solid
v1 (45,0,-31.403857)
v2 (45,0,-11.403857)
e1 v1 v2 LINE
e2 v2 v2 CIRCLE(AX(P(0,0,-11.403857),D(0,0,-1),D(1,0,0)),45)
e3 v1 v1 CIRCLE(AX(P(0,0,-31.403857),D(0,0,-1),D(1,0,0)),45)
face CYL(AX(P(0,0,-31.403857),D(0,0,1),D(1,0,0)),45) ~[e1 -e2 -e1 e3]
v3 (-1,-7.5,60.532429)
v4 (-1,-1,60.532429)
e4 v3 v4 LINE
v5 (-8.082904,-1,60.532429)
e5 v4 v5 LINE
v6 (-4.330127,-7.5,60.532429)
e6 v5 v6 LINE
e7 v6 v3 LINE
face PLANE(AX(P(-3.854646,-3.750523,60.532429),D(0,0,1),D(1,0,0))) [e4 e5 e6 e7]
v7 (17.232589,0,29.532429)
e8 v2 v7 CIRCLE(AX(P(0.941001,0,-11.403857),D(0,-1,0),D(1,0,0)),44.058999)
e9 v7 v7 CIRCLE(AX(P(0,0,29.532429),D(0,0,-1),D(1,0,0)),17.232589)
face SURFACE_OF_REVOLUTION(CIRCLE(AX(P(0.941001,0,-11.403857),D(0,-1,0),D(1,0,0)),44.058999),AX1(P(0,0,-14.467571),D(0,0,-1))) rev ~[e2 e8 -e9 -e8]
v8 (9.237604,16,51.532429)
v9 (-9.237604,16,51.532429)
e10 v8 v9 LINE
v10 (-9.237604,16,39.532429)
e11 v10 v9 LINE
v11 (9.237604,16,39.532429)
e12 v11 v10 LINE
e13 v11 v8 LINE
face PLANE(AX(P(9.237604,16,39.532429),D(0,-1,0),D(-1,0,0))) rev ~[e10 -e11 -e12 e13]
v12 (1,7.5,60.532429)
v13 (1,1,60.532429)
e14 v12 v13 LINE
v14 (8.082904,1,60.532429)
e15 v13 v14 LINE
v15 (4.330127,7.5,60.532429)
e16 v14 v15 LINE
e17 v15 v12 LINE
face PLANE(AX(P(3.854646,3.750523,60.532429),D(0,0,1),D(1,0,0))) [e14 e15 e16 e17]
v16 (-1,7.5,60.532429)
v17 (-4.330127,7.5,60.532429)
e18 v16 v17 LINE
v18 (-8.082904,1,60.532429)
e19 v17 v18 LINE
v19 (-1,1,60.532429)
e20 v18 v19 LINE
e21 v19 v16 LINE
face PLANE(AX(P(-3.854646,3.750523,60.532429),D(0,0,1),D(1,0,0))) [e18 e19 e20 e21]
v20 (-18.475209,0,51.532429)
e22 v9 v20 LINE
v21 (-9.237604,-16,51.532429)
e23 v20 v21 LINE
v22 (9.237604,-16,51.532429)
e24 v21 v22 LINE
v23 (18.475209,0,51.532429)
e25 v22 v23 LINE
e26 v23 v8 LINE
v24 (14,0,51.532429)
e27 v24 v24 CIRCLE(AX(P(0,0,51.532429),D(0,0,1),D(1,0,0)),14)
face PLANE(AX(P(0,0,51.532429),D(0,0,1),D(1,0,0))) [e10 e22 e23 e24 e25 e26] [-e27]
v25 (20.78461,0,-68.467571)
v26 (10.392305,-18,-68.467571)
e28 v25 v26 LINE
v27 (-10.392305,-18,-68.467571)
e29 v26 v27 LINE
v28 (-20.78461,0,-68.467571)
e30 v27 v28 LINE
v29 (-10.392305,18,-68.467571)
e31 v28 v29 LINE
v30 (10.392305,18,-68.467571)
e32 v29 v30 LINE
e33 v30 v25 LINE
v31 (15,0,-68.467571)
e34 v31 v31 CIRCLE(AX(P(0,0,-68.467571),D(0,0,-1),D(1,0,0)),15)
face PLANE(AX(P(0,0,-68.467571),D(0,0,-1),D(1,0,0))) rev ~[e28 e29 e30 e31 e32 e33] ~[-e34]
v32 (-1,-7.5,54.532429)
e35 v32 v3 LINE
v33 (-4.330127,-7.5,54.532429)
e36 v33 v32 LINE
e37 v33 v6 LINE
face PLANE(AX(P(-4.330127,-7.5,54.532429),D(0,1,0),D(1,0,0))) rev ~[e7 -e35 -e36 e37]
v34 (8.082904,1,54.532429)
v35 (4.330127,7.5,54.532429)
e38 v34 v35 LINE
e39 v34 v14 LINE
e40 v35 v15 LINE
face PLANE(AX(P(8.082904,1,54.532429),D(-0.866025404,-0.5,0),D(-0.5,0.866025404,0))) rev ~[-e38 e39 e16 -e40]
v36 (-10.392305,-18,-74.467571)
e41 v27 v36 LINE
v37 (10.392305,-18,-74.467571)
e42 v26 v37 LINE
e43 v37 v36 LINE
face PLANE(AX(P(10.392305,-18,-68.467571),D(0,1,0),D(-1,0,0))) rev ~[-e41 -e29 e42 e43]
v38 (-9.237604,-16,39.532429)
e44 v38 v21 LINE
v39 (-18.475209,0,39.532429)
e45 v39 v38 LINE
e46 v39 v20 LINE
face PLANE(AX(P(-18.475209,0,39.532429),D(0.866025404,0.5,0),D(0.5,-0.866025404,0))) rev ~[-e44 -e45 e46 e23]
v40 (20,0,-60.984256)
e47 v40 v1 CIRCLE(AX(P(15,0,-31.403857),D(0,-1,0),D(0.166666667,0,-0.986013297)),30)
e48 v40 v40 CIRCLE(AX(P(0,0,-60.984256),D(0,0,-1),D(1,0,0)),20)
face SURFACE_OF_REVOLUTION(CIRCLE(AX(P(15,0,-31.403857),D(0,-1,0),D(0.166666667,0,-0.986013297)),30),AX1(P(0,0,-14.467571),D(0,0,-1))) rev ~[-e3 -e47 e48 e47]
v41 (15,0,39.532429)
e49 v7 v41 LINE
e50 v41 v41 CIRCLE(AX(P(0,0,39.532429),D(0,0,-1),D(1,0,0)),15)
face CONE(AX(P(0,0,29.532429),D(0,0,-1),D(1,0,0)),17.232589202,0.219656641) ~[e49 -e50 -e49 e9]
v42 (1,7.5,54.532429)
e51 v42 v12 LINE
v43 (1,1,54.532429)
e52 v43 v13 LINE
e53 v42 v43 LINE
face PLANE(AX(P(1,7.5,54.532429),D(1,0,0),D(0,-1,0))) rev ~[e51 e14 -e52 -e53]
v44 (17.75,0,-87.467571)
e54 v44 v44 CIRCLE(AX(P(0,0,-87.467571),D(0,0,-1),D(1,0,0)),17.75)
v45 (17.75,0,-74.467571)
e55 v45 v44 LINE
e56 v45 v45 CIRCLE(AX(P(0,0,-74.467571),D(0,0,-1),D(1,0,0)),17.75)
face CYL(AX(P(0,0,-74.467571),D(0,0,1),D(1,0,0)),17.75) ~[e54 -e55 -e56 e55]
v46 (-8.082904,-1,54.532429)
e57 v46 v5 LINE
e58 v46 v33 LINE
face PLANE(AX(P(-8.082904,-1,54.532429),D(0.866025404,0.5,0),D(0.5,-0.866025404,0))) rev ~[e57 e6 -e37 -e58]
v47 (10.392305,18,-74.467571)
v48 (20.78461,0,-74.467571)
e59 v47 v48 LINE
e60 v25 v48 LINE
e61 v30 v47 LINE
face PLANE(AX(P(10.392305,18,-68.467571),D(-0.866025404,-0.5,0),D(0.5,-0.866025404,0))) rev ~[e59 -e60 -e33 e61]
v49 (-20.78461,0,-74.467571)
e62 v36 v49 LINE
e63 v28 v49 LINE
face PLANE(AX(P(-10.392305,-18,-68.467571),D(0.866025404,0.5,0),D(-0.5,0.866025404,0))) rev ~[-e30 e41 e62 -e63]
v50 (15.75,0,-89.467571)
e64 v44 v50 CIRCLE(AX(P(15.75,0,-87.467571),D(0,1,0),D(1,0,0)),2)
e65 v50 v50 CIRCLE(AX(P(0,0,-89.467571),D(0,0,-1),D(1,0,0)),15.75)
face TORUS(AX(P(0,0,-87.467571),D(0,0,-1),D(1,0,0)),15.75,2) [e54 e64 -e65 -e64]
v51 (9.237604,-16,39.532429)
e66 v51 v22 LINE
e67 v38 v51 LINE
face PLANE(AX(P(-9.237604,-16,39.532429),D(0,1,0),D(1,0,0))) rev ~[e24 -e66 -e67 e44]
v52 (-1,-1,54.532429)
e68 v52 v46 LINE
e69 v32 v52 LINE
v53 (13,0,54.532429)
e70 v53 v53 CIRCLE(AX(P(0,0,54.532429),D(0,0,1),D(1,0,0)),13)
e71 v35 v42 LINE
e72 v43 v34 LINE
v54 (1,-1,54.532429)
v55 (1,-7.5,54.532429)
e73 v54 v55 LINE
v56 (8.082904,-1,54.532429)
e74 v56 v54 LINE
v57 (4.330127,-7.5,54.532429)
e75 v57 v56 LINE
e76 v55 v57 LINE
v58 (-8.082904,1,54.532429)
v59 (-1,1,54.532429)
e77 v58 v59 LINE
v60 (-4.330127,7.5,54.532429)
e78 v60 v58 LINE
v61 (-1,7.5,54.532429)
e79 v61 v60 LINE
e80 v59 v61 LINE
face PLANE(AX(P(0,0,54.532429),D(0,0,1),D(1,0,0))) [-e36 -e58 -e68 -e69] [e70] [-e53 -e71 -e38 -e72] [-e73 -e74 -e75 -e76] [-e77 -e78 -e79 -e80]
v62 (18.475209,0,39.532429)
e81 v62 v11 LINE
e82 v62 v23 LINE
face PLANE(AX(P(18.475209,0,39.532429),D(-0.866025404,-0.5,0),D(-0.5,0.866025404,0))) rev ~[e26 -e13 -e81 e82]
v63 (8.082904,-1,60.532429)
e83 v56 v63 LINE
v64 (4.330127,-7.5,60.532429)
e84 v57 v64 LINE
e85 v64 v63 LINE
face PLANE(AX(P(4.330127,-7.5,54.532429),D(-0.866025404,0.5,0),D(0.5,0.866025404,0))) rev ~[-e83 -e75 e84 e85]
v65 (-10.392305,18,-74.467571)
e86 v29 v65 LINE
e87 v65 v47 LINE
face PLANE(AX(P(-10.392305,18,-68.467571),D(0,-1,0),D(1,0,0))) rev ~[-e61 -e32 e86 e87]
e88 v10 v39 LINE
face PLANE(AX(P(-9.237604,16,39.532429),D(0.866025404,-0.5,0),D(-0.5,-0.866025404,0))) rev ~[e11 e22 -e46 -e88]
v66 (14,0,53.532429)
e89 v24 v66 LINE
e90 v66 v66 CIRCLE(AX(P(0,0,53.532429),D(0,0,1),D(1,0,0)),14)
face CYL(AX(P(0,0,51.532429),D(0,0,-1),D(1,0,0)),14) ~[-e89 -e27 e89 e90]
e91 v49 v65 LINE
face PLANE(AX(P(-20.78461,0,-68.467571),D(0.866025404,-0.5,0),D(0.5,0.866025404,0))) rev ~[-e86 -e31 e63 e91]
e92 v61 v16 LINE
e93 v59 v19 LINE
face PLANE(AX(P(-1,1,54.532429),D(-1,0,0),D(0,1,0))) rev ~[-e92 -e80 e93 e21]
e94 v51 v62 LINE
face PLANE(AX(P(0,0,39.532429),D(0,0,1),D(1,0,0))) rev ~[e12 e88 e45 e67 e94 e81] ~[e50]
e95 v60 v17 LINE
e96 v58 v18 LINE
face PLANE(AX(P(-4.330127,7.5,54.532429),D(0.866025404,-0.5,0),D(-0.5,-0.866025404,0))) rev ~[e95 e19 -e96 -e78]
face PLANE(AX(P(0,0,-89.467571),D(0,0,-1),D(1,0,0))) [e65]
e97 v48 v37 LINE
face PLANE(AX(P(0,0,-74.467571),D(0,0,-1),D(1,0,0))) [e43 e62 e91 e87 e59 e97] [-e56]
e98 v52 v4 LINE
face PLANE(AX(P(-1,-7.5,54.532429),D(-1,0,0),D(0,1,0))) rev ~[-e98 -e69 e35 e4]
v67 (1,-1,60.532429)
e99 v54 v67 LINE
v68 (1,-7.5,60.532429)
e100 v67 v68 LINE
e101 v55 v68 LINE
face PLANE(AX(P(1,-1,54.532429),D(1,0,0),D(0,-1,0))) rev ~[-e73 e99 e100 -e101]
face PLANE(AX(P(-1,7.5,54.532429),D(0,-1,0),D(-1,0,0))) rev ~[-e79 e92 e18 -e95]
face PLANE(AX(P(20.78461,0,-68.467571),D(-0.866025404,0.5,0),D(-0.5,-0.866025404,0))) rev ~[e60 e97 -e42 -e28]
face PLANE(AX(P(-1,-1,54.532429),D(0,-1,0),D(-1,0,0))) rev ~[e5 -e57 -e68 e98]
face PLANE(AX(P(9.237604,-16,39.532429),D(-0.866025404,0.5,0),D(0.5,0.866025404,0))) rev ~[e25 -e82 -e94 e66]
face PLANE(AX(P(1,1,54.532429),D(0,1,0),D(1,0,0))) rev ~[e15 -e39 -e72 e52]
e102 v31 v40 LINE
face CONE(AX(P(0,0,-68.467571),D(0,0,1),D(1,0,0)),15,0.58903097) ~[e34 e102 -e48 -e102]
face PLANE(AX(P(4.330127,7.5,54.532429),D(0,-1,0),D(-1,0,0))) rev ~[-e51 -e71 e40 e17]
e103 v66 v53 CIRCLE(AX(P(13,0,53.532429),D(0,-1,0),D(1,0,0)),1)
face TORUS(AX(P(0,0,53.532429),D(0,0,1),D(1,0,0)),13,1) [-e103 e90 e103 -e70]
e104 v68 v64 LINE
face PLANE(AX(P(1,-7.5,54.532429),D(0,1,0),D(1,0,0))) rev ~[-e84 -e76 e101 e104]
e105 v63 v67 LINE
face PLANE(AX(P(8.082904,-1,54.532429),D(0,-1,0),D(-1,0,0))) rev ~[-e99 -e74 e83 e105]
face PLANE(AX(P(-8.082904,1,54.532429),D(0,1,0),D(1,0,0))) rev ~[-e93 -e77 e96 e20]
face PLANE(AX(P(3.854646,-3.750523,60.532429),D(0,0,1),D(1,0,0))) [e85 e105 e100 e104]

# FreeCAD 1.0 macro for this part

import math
import FreeCAD as App
import Part
import Sketcher
Q = App.Units.Quantity


def edges_at(feature, points):
    """Names of the edges that pass closest to the given points."""
    edges = feature.Shape.Edges
    near = lambda p: min(range(len(edges)), key=lambda i: edges[i].distToShape(Part.Vertex(*p))[0])
    return sorted({f"Edge{near(p) + 1}" for p in points})


def add_polygon(sketch, points):
    """Adds a closed chain of lines whose ends are joined by coincident constraints."""
    first, n = sketch.GeometryCount, len(points)
    for a, b in zip(points, points[1:] + points[:1]):
        sketch.addGeometry(Part.LineSegment(App.Vector(*a, 0), App.Vector(*b, 0)), False)
    for i in range(n):
        sketch.addConstraint(Sketcher.Constraint("Coincident", first + i, 2, first + (i + 1) % n, 1))

doc = App.newDocument("Part")
body = doc.addObject("PartDesign::Body", "Body")

sketch1 = doc.addObject("Sketcher::SketchObject", "Sketch")
body.addObject(sketch1)
sketch1.AttachmentSupport = (doc.XZ_Plane, [""])
sketch1.MapMode = "FlatFace"
sketch1.addGeometry([
    Part.LineSegment(App.Vector(15, 40, 0), App.Vector(0, 40, 0)),
    Part.LineSegment(App.Vector(0, 40, 0), App.Vector(0, -68, 0)),
    Part.LineSegment(App.Vector(0, -68, 0), App.Vector(15, -68, 0)),
    Part.LineSegment(App.Vector(15, -68, 0), App.Vector(20, -61, 0)),
    Part.ArcOfCircle(Part.Circle(App.Vector(15, -31, 0), App.Vector(0, 0, 1), 30), math.radians(-80), math.radians(0)),
    Part.LineSegment(App.Vector(45, -31, 0), App.Vector(45, -11, 0)),
    Part.ArcOfCircle(Part.Circle(App.Vector(1, -11, 0), App.Vector(0, 0, 1), 44), math.radians(0), math.radians(68)),
    Part.LineSegment(App.Vector(17, 30, 0), App.Vector(15, 40, 0)),
], False)
sketch1.addConstraint([
    Sketcher.Constraint("Coincident", 0, 2, 1, 1),
    Sketcher.Constraint("Coincident", 1, 2, 2, 1),
    Sketcher.Constraint("Coincident", 2, 2, 3, 1),
    Sketcher.Constraint("Coincident", 3, 2, 4, 1),
    Sketcher.Constraint("Tangent", 4, 2, 5, 1),
    Sketcher.Constraint("Tangent", 5, 2, 6, 1),
    Sketcher.Constraint("Coincident", 6, 2, 7, 1),
    Sketcher.Constraint("Coincident", 7, 2, 0, 1),
    Sketcher.Constraint("Horizontal", 0),
    Sketcher.Constraint("Vertical", 1),
    Sketcher.Constraint("Horizontal", 2),
    Sketcher.Constraint("Vertical", 5),
    Sketcher.Constraint("PointOnObject", 0, 2, -2),
    Sketcher.Constraint("Vertical", 4, 3, 2, 2),
    Sketcher.Constraint("Vertical", 2, 2, 7, 2),
    Sketcher.Constraint("Radius", 4, 30.0),
    Sketcher.Constraint("DistanceX", 0, 2, 0, 1, 15.0),
    Sketcher.Constraint("DistanceY", 1, 2, 1, 1, 108.0),
    Sketcher.Constraint("DistanceY", 5, 1, 5, 2, 20.0),
    Sketcher.Constraint("Distance", 3, 9.0),
    Sketcher.Constraint("DistanceX", -1, 1, 3, 2, 20.0),
    Sketcher.Constraint("Radius", 6, 44.058999),
    Sketcher.Constraint("DistanceY", 6, 2, 0, 2, 10.0),
    Sketcher.Constraint("DistanceY", -1, 1, 0, 2, 39.532429),
])
revolution = doc.addObject("PartDesign::Revolution", "Revolution")
body.addObject(revolution)
revolution.Profile = sketch1
revolution.ReferenceAxis = (sketch1, ["V_Axis"])
revolution.Angle = 360

sketch2 = doc.addObject("Sketcher::SketchObject", "Sketch001")
body.addObject(sketch2)
sketch2.AttachmentSupport = (doc.XY_Plane, [""])
sketch2.MapMode = "FlatFace"
sketch2.AttachmentOffset = App.Placement(App.Vector(0, 0, 39.532429), App.Rotation())
add_polygon(sketch2, [(9, -16), (18, 0), (9, 16), (-9, 16), (-18, 0), (-9, -16)])
sketch2.addConstraint([
    Sketcher.Constraint("Horizontal", 2),
    Sketcher.Constraint("Horizontal", 5),
    Sketcher.Constraint("Symmetric", 0, 2, 3, 2, -1, 1),
    Sketcher.Constraint("Symmetric", 1, 2, 4, 2, -1, 1),
    Sketcher.Constraint("PointOnObject", 0, 2, -1),
    Sketcher.Constraint("Parallel", 0, 3),
    Sketcher.Constraint("Vertical", 2, 2, 4, 2),
    Sketcher.Constraint("Angle", 0, Q("60 deg")),
    Sketcher.Constraint("DistanceY", -1, 1, 1, 2, 16.0),
    Sketcher.Constraint("DistanceX", 2, 2, 2, 1, 18.475209),
])
pad1 = doc.addObject("PartDesign::Pad", "Pad")
body.addObject(pad1)
pad1.Profile = sketch2
pad1.Length = 12

sketch3 = doc.addObject("Sketcher::SketchObject", "Sketch002")
body.addObject(sketch3)
sketch3.AttachmentSupport = (doc.XY_Plane, [""])
sketch3.MapMode = "FlatFace"
sketch3.AttachmentOffset = App.Placement(App.Vector(0, 0, 51.532429), App.Rotation())
sketch3.addGeometry(Part.Circle(App.Vector(0, 0, 0), App.Vector(0, 0, 1), 14), False)
sketch3.addConstraint([
    Sketcher.Constraint("Coincident", 0, 3, -1, 1),
    Sketcher.Constraint("Diameter", 0, 28.0),
])
pad2 = doc.addObject("PartDesign::Pad", "Pad001")
body.addObject(pad2)
pad2.Profile = sketch3
pad2.Length = 3
doc.recompute()

fillet = doc.addObject("PartDesign::Fillet", "Fillet")
body.addObject(fillet)
fillet.Base = (pad2, edges_at(pad2, [(-14, 0, 54.532)]))
fillet.Radius = 1

sketch4 = doc.addObject("Sketcher::SketchObject", "Sketch003")
body.addObject(sketch4)
sketch4.AttachmentSupport = (doc.XY_Plane, [""])
sketch4.MapMode = "FlatFace"
sketch4.AttachmentOffset = App.Placement(App.Vector(0, 0, 54.532429), App.Rotation())
add_polygon(sketch4, [(4.3, -7.5), (8.1, -1), (1, -1), (1, -7.5)])
add_polygon(sketch4, [(-1, -7.5), (-1, -1), (-8.1, -1), (-4.3, -7.5)])
add_polygon(sketch4, [(1, 1), (8.1, 1), (4.3, 7.5), (1, 7.5)])
add_polygon(sketch4, [(-8.1, 1), (-1, 1), (-1, 7.5), (-4.3, 7.5)])
sketch4.addConstraint([
    Sketcher.Constraint("Horizontal", 1),
    Sketcher.Constraint("Vertical", 2),
    Sketcher.Constraint("Horizontal", 3),
    Sketcher.Constraint("Vertical", 4),
    Sketcher.Constraint("Horizontal", 5),
    Sketcher.Constraint("Horizontal", 7),
    Sketcher.Constraint("Horizontal", 8),
    Sketcher.Constraint("Horizontal", 10),
    Sketcher.Constraint("Vertical", 11),
    Sketcher.Constraint("Horizontal", 12),
    Sketcher.Constraint("Vertical", 13),
    Sketcher.Constraint("Horizontal", 14),
    Sketcher.Constraint("Symmetric", 5, 2, 8, 2, -1, 1),
    Sketcher.Constraint("Symmetric", 6, 2, 9, 2, -1, 1),
    Sketcher.Constraint("Symmetric", 1, 2, 12, 2, -1, 1),
    Sketcher.Constraint("Symmetric", 3, 2, 14, 2, -1, 1),
    Sketcher.Constraint("Symmetric", 1, 2, 4, 2, -2),
    Sketcher.Constraint("Symmetric", 3, 2, 6, 2, -2),
    Sketcher.Constraint("Parallel", 0, 15),
    Sketcher.Constraint("Vertical", 0, 2, 8, 2),
    Sketcher.Constraint("Vertical", 2, 2, 10, 2),
    Sketcher.Constraint("Angle", 0, Q("60 deg")),
    Sketcher.Constraint("DistanceY", 2, 2, 2, 1, 6.5),
    Sketcher.Constraint("DistanceY", 0, 2, -1, 1, 1.0),
    Sketcher.Constraint("DistanceX", -1, 1, 1, 2, 1.0),
    Sketcher.Constraint("DistanceX", 1, 2, 1, 1, 7.082904),
])
pad3 = doc.addObject("PartDesign::Pad", "Pad002")
body.addObject(pad3)
pad3.Profile = sketch4
pad3.Length = 6

sketch5 = doc.addObject("Sketcher::SketchObject", "Sketch004")
body.addObject(sketch5)
sketch5.AttachmentSupport = (doc.XY_Plane, [""])
sketch5.MapMode = "FlatFace"
sketch5.AttachmentOffset = App.Placement(App.Vector(0, 0, -68.467571), App.Rotation())
add_polygon(sketch5, [(10, 18), (21, 0), (10, -18), (-10, -18), (-21, 0), (-10, 18)])
sketch5.addConstraint([
    Sketcher.Constraint("Horizontal", 2),
    Sketcher.Constraint("Horizontal", 5),
    Sketcher.Constraint("Symmetric", 0, 2, 3, 2, -1, 1),
    Sketcher.Constraint("Symmetric", 1, 2, 4, 2, -1, 1),
    Sketcher.Constraint("PointOnObject", 0, 2, -1),
    Sketcher.Constraint("Parallel", 0, 3),
    Sketcher.Constraint("Vertical", 2, 2, 4, 2),
    Sketcher.Constraint("Angle", 0, Q("-60 deg")),
    Sketcher.Constraint("DistanceY", 1, 2, -1, 1, 18.0),
    Sketcher.Constraint("DistanceX", 2, 2, 2, 1, 20.78461),
])
pad4 = doc.addObject("PartDesign::Pad", "Pad003")
body.addObject(pad4)
pad4.Profile = sketch5
pad4.Length = 6
pad4.Reversed = True

sketch6 = doc.addObject("Sketcher::SketchObject", "Sketch005")
body.addObject(sketch6)
sketch6.AttachmentSupport = (doc.XY_Plane, [""])
sketch6.MapMode = "FlatFace"
sketch6.AttachmentOffset = App.Placement(App.Vector(0, 0, -74.467571), App.Rotation())
sketch6.addGeometry(Part.Circle(App.Vector(0, 0, 0), App.Vector(0, 0, 1), 18), False)
sketch6.addConstraint([
    Sketcher.Constraint("Coincident", 0, 3, -1, 1),
    Sketcher.Constraint("Diameter", 0, 35.5),
])
pad5 = doc.addObject("PartDesign::Pad", "Pad004")
body.addObject(pad5)
pad5.Profile = sketch6
pad5.Length = 15
pad5.Reversed = True
doc.recompute()

fillet2 = doc.addObject("PartDesign::Fillet", "Fillet001")
body.addObject(fillet2)
fillet2.Base = (pad5, edges_at(pad5, [(-17.75, 0, -89.468)]))
fillet2.Radius = 2

doc.recompute()
